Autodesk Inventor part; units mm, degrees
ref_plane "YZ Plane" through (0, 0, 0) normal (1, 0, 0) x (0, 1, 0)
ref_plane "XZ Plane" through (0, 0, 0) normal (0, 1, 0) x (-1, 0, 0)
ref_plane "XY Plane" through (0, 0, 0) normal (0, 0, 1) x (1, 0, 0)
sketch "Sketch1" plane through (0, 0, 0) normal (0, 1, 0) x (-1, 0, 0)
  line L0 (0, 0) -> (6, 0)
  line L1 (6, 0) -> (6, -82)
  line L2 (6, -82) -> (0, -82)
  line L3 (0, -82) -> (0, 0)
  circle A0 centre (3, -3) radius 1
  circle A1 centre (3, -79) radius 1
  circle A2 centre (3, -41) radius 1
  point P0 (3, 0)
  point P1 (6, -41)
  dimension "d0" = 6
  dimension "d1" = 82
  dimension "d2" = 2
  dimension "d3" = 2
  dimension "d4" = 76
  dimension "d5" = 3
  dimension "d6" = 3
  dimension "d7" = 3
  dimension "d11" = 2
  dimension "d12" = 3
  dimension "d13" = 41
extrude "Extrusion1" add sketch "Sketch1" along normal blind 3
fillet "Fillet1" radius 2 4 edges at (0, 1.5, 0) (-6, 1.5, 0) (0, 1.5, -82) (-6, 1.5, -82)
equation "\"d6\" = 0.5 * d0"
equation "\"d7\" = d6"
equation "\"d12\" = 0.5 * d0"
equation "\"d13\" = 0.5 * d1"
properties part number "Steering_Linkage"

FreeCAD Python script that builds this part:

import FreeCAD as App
import Part
import Sketcher

V = App.Vector
Q = App.Units.Quantity


def edges_at(feature, points):
    """Names of the edges that pass closest to the given points."""
    edges = feature.Shape.Edges
    near = lambda p: min(range(len(edges)), key=lambda i: edges[i].distToShape(Part.Vertex(*p))[0])
    return sorted({f"Edge{near(p) + 1}" for p in points})


def add_polygon(sketch, points):
    """Adds a closed chain of lines whose ends are joined by coincident constraints."""
    first, n = sketch.GeometryCount, len(points)
    for a, b in zip(points, points[1:] + points[:1]):
        sketch.addGeometry(Part.LineSegment(App.Vector(*a, 0), App.Vector(*b, 0)), False)
    for i in range(n):
        sketch.addConstraint(Sketcher.Constraint("Coincident", first + i, 2, first + (i + 1) % n, 1))

doc = App.newDocument("Part")
body = doc.addObject("PartDesign::Body", "Body")

# Sketch on XZ plane
sketch1 = body.newObject("Sketcher::SketchObject", "Sketch")
sketch1.AttachmentSupport = (doc.getObject("XZ_Plane"), [""])
sketch1.MapMode = "FlatFace"
add_polygon(sketch1, [(-6, 0), (0, 0), (0, -82), (-6, -82)])  # lines 0-3
sketch1.addGeometry(Part.Circle(V(-3, -79, 0), V(0, 0, 1), 1), False)  # 4
sketch1.addGeometry(Part.Circle(V(-3, -41, 0), V(0, 0, 1), 1), False)  # 5
sketch1.addGeometry(Part.Circle(V(-3, -3, 0), V(0, 0, 1), 1), False)  # 6
sketch1.addConstraint(Sketcher.Constraint("Horizontal", 0))
sketch1.addConstraint(Sketcher.Constraint("Vertical", 1))
sketch1.addConstraint(Sketcher.Constraint("Horizontal", 2))
sketch1.addConstraint(Sketcher.Constraint("Vertical", 3))
sketch1.addConstraint(Sketcher.Constraint("Coincident", 0, 2, -1, 1))
sketch1.addConstraint(Sketcher.Constraint("Equal", 4, 5))
sketch1.addConstraint(Sketcher.Constraint("Equal", 5, 6))
sketch1.addConstraint(Sketcher.Constraint("Vertical", 4, 3, 5, 3))
sketch1.addConstraint(Sketcher.Constraint("Vertical", 5, 3, 6, 3))
sketch1.addConstraint(Sketcher.Constraint("Diameter", 4, Q("2 mm")))
sketch1.addConstraint(Sketcher.Constraint("DistanceX", 0, 1, 0, 2, Q("6 mm")))
sketch1.addConstraint(Sketcher.Constraint("DistanceY", 1, 2, 1, 1, Q("82 mm")))
sketch1.addConstraint(Sketcher.Constraint("DistanceX", 4, 3, -1, 1, Q("3 mm")))
sketch1.addConstraint(Sketcher.Constraint("DistanceY", 5, 3, -1, 1, Q("41 mm")))
sketch1.addConstraint(Sketcher.Constraint("DistanceY", 6, 3, -1, 1, Q("3 mm")))
sketch1.addConstraint(Sketcher.Constraint("DistanceY", 4, 3, 6, 3, Q("76 mm")))
pad1 = body.newObject("PartDesign::Pad", "Pad")
pad1.Profile = sketch1
pad1.Length = 3
pad1.Reversed = True
doc.recompute()

fillet = body.newObject("PartDesign::Fillet", "Fillet")
fillet.Base = (pad1, edges_at(pad1, [
    (0, 1.5, 0),
    (-6, 1.5, 0),
    (0, 1.5, -82),
    (-6, 1.5, -82),
]))
fillet.Radius = 2

doc.recompute()
